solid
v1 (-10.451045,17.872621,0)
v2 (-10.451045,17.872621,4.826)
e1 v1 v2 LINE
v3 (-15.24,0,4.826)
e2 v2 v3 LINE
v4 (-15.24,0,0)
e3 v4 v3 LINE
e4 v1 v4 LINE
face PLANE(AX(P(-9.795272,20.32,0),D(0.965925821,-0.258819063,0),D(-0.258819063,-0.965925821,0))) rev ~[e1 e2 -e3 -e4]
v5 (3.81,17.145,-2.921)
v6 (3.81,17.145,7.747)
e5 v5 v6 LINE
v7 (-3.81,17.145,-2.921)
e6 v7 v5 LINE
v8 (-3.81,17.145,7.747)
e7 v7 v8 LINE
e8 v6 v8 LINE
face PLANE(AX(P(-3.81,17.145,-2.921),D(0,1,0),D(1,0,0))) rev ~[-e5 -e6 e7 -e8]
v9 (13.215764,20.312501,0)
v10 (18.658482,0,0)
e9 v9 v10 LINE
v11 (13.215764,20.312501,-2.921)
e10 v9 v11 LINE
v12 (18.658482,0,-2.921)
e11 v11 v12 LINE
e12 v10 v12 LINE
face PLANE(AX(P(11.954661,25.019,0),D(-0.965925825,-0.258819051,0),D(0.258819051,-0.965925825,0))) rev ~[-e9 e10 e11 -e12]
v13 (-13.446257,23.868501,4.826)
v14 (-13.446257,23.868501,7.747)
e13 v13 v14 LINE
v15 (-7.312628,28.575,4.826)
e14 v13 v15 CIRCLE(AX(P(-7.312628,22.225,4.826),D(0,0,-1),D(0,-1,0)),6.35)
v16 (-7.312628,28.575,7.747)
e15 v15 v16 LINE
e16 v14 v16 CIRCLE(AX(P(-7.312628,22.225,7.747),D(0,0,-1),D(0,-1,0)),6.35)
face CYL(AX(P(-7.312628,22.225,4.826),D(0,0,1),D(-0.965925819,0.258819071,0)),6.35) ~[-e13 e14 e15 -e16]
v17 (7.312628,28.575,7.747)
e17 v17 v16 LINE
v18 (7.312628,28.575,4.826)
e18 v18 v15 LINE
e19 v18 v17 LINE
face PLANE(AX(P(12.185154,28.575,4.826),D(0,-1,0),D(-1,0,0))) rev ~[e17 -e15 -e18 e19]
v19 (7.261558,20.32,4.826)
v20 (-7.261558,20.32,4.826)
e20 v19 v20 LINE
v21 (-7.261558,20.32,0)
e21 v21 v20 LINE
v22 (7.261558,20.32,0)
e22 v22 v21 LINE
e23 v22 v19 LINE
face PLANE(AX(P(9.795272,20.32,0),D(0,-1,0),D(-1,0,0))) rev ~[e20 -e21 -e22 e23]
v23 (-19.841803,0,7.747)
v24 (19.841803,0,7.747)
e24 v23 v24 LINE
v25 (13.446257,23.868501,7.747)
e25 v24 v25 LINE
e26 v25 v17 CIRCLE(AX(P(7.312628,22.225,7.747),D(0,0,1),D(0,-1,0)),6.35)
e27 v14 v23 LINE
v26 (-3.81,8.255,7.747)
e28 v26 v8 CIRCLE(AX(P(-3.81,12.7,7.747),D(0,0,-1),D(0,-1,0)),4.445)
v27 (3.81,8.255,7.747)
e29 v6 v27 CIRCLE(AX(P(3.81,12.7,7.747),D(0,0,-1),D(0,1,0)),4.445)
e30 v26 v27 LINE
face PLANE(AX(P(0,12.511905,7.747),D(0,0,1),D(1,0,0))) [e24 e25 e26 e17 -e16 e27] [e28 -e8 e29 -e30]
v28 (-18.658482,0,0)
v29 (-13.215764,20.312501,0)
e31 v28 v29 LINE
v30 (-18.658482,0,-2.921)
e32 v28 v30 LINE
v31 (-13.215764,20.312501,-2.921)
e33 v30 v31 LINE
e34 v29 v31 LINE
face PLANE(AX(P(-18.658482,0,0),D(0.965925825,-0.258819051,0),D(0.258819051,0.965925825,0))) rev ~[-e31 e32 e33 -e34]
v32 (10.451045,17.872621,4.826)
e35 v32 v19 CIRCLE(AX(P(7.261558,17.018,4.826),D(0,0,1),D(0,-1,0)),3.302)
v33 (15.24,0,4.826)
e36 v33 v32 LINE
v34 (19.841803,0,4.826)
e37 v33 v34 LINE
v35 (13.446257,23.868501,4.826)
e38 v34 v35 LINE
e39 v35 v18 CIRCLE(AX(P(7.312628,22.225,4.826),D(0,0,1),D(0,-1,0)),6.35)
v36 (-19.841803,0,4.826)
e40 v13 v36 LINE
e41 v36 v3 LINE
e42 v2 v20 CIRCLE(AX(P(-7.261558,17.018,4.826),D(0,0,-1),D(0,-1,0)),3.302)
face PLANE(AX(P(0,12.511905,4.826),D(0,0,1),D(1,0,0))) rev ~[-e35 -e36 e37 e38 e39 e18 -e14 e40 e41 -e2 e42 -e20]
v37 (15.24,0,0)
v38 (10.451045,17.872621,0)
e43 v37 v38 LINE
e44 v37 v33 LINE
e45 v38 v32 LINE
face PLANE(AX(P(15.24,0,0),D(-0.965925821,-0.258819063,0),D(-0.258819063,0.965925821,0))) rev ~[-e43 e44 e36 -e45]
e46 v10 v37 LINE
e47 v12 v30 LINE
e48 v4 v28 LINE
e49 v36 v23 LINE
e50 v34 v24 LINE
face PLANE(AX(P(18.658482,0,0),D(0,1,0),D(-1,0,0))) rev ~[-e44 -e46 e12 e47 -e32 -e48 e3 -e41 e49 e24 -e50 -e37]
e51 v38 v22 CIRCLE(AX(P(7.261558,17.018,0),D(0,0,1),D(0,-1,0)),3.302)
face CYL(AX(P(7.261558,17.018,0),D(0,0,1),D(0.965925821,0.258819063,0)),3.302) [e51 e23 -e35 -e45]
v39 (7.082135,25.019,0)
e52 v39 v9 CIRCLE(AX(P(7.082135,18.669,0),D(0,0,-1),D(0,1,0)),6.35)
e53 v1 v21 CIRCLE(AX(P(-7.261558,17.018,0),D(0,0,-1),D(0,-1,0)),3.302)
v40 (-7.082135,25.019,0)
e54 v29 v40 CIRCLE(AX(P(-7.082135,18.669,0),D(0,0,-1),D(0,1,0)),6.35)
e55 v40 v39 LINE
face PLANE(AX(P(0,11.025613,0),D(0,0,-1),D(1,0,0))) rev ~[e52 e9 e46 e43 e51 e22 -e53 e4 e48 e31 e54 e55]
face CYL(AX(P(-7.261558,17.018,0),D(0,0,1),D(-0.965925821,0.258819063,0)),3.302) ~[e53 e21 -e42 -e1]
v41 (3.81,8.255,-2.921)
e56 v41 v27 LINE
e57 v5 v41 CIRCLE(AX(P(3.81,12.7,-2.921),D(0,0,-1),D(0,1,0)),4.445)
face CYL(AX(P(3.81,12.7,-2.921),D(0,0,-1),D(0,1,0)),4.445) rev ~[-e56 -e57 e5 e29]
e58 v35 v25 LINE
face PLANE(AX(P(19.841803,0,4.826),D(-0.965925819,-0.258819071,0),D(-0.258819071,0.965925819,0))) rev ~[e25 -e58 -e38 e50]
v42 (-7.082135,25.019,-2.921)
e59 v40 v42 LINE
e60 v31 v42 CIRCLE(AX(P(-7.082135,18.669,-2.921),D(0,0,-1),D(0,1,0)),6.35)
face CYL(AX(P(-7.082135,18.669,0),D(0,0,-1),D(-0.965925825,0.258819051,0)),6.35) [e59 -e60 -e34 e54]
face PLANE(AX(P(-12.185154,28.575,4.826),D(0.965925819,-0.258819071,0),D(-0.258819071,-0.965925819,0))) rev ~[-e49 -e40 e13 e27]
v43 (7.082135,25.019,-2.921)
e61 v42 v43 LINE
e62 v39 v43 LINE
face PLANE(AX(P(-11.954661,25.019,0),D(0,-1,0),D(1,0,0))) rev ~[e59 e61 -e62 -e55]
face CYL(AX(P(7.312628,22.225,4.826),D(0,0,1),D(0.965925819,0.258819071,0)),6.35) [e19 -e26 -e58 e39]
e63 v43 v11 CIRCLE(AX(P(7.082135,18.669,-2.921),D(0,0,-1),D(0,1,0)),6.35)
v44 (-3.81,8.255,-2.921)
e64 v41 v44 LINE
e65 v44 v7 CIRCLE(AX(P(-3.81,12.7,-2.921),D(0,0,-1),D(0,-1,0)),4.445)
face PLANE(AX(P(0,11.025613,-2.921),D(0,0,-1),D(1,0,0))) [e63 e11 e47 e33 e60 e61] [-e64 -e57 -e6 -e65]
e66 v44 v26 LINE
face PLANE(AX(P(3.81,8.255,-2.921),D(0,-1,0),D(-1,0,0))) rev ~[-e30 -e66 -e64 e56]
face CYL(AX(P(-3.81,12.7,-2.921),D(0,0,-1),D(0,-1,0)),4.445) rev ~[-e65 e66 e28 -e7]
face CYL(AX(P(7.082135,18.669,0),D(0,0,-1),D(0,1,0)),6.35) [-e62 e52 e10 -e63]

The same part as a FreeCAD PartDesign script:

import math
import FreeCAD as App
import Part
import Sketcher
from FreeCAD import Vector
Q = App.Units.Quantity


def edges_at(feature, points):
    """Names of the edges that pass closest to the given points."""
    edges = feature.Shape.Edges
    near = lambda p: min(range(len(edges)), key=lambda i: edges[i].distToShape(Part.Vertex(*p))[0])
    return sorted({f"Edge{near(p) + 1}" for p in points})

doc = App.newDocument("Part")
body = doc.addObject("PartDesign::Body", "Body")

sketch1 = body.newObject("Sketcher::SketchObject", "Sketch")
sketch1.AttachmentSupport = (doc.getObject("XY_Plane"), [""])
sketch1.MapMode = "FlatFace"
sketch1.addGeometry(Part.LineSegment(Vector(-10, 20, 0), Vector(-15, 0, 0)), False)
sketch1.addGeometry(Part.LineSegment(Vector(-15, 0, 0), Vector(15, 0, 0)), False)
sketch1.addGeometry(Part.LineSegment(Vector(15, 0, 0), Vector(10, 20, 0)), False)
sketch1.addGeometry(Part.LineSegment(Vector(10, 20, 0), Vector(-10, 20, 0)), False)
sketch1.addConstraint(Sketcher.Constraint("Coincident", 0, 2, 1, 1))
sketch1.addConstraint(Sketcher.Constraint("Coincident", 1, 2, 2, 1))
sketch1.addConstraint(Sketcher.Constraint("Coincident", 2, 2, 3, 1))
sketch1.addConstraint(Sketcher.Constraint("Coincident", 3, 2, 0, 1))
sketch1.addConstraint(Sketcher.Constraint("Horizontal", 1))
sketch1.addConstraint(Sketcher.Constraint("Horizontal", 3))
sketch1.addConstraint(Sketcher.Constraint("Symmetric", 0, 2, 1, 2, -1, 1))
sketch1.addConstraint(Sketcher.Constraint("Equal", 0, 2))
sketch1.addConstraint(Sketcher.Constraint("DistanceX", 1, 1, 1, 2, Q("1.2 in")))
sketch1.addConstraint(Sketcher.Constraint("Angle", 0, Q("-105.000001 deg")))
sketch1.addConstraint(Sketcher.Constraint("DistanceY", -1, 1, 2, 2, Q("0.8 in")))
pad1 = body.newObject("PartDesign::Pad", "Pad")
pad1.Profile = sketch1
pad1.Length = Q("0.19 in")

sketch2 = body.newObject("Sketcher::SketchObject", "Sketch001")
sketch2.AttachmentSupport = (doc.getObject("XY_Plane"), [""])
sketch2.MapMode = "FlatFace"
sketch2.AttachmentOffset = App.Placement(Vector(0, 0, 0.19 * 25.4), App.Rotation())
sketch2.addGeometry(Part.LineSegment(Vector(-20, 0, 0), Vector(20, 0, 0)), False)
sketch2.addGeometry(Part.LineSegment(Vector(20, 0, 0), Vector(12, 29, 0)), False)
sketch2.addGeometry(Part.LineSegment(Vector(12, 29, 0), Vector(-12, 29, 0)), False)
sketch2.addGeometry(Part.LineSegment(Vector(-12, 29, 0), Vector(-20, 0, 0)), False)
sketch2.addConstraint(Sketcher.Constraint("Coincident", 0, 2, 1, 1))
sketch2.addConstraint(Sketcher.Constraint("Coincident", 1, 2, 2, 1))
sketch2.addConstraint(Sketcher.Constraint("Coincident", 2, 2, 3, 1))
sketch2.addConstraint(Sketcher.Constraint("Coincident", 3, 2, 0, 1))
sketch2.addConstraint(Sketcher.Constraint("Horizontal", 0))
sketch2.addConstraint(Sketcher.Constraint("Horizontal", 2))
sketch2.addConstraint(Sketcher.Constraint("Symmetric", 0, 2, 3, 2, -1, 1))
sketch2.addConstraint(Sketcher.Constraint("Equal", 1, 3))
sketch2.addConstraint(Sketcher.Constraint("Angle", 1, Q("105.000002 deg")))
sketch2.addConstraint(Sketcher.Constraint("DistanceY", -1, 1, 1, 2, Q("1.125 in")))
sketch2.addConstraint(Sketcher.Constraint("DistanceX", 2, 2, 2, 1, Q("24.370308 mm")))
pad2 = body.newObject("PartDesign::Pad", "Pad001")
pad2.Profile = sketch2
pad2.Length = Q("0.115 in")

sketch3 = body.newObject("Sketcher::SketchObject", "Sketch002")
sketch3.AttachmentSupport = (doc.getObject("XY_Plane"), [""])
sketch3.MapMode = "FlatFace"
sketch3.addGeometry(Part.LineSegment(Vector(19, 0, 0), Vector(-19, 0, 0)), False)
sketch3.addGeometry(Part.LineSegment(Vector(-19, 0, 0), Vector(-12, 25, 0)), False)
sketch3.addGeometry(Part.LineSegment(Vector(-12, 25, 0), Vector(12, 25, 0)), False)
sketch3.addGeometry(Part.LineSegment(Vector(12, 25, 0), Vector(19, 0, 0)), False)
sketch3.addConstraint(Sketcher.Constraint("Coincident", 0, 2, 1, 1))
sketch3.addConstraint(Sketcher.Constraint("Coincident", 1, 2, 2, 1))
sketch3.addConstraint(Sketcher.Constraint("Coincident", 2, 2, 3, 1))
sketch3.addConstraint(Sketcher.Constraint("Coincident", 3, 2, 0, 1))
sketch3.addConstraint(Sketcher.Constraint("Horizontal", 0))
sketch3.addConstraint(Sketcher.Constraint("Horizontal", 2))
sketch3.addConstraint(Sketcher.Constraint("Symmetric", 0, 2, 3, 2, -1, 1))
sketch3.addConstraint(Sketcher.Constraint("Equal", 1, 3))
sketch3.addConstraint(Sketcher.Constraint("Angle", 1, Q("75 deg")))
sketch3.addConstraint(Sketcher.Constraint("DistanceY", -1, 1, 1, 2, Q("0.985 in")))
sketch3.addConstraint(Sketcher.Constraint("DistanceX", 2, 1, 2, 2, Q("23.909322 mm")))
pad3 = body.newObject("PartDesign::Pad", "Pad002")
pad3.Profile = sketch3
pad3.Length = Q("0.115 in")
pad3.Reversed = True

sketch4 = body.newObject("Sketcher::SketchObject", "Sketch003")
sketch4.AttachmentSupport = (doc.getObject("XY_Plane"), [""])
sketch4.MapMode = "FlatFace"
sketch4.AttachmentOffset = App.Placement(Vector(0, 0, -0.115 * 25.4), App.Rotation())
sketch4.addGeometry(Part.LineSegment(Vector(3.8, 8.3, 0), Vector(-3.8, 8.3, 0)), False)
sketch4.addGeometry(Part.ArcOfCircle(Part.Circle(Vector(-3.8, 12.7, 0), Vector(0, 0, 1), 4.4), math.radians(90), math.radians(270)), False)
sketch4.addGeometry(Part.LineSegment(Vector(-3.8, 17.1, 0), Vector(3.8, 17.1, 0)), False)
sketch4.addGeometry(Part.ArcOfCircle(Part.Circle(Vector(3.8, 12.7, 0), Vector(0, 0, 1), 4.4), math.radians(-90), math.radians(90)), False)
sketch4.addConstraint(Sketcher.Constraint("Tangent", 0, 2, 1, 2))
sketch4.addConstraint(Sketcher.Constraint("Tangent", 1, 1, 2, 1))
sketch4.addConstraint(Sketcher.Constraint("Tangent", 2, 2, 3, 2))
sketch4.addConstraint(Sketcher.Constraint("Tangent", 3, 1, 0, 1))
sketch4.addConstraint(Sketcher.Constraint("Horizontal", 0))
sketch4.addConstraint(Sketcher.Constraint("Horizontal", 2))
sketch4.addConstraint(Sketcher.Constraint("DistanceX", 0, 2, 0, 1, Q("0.3 in")))
sketch4.addConstraint(Sketcher.Constraint("Radius", 1, Q("0.175 in")))
sketch4.addConstraint(Sketcher.Constraint("DistanceY", -1, 1, 1, 3, Q("0.5 in")))
sketch4.addConstraint(Sketcher.Constraint("DistanceX", 1, 3, -1, 1, Q("0.15 in")))
pocket1 = body.newObject("PartDesign::Pocket", "Pocket")
pocket1.Profile = sketch4
pocket1.Length = Q("1 in")
pocket1.Reversed = True
doc.recompute()

fillet = body.newObject("PartDesign::Fillet", "Fillet")
fillet.Base = (pocket1, edges_at(pocket1, [(9.795, 20.32, 2.413), (-9.795, 20.32, 2.413)]))
fillet.Radius = Q("0.13 in")
doc.recompute()

fillet2 = body.newObject("PartDesign::Fillet", "Fillet001")
fillet2.Base = (fillet, edges_at(fillet, [
    (12.185, 28.575, 6.287),
    (-12.185, 28.575, 6.287),
    (11.955, 25.019, -1.46),
    (-11.955, 25.019, -1.46),
]))
fillet2.Radius = Q("0.25 in")

doc.recompute()
